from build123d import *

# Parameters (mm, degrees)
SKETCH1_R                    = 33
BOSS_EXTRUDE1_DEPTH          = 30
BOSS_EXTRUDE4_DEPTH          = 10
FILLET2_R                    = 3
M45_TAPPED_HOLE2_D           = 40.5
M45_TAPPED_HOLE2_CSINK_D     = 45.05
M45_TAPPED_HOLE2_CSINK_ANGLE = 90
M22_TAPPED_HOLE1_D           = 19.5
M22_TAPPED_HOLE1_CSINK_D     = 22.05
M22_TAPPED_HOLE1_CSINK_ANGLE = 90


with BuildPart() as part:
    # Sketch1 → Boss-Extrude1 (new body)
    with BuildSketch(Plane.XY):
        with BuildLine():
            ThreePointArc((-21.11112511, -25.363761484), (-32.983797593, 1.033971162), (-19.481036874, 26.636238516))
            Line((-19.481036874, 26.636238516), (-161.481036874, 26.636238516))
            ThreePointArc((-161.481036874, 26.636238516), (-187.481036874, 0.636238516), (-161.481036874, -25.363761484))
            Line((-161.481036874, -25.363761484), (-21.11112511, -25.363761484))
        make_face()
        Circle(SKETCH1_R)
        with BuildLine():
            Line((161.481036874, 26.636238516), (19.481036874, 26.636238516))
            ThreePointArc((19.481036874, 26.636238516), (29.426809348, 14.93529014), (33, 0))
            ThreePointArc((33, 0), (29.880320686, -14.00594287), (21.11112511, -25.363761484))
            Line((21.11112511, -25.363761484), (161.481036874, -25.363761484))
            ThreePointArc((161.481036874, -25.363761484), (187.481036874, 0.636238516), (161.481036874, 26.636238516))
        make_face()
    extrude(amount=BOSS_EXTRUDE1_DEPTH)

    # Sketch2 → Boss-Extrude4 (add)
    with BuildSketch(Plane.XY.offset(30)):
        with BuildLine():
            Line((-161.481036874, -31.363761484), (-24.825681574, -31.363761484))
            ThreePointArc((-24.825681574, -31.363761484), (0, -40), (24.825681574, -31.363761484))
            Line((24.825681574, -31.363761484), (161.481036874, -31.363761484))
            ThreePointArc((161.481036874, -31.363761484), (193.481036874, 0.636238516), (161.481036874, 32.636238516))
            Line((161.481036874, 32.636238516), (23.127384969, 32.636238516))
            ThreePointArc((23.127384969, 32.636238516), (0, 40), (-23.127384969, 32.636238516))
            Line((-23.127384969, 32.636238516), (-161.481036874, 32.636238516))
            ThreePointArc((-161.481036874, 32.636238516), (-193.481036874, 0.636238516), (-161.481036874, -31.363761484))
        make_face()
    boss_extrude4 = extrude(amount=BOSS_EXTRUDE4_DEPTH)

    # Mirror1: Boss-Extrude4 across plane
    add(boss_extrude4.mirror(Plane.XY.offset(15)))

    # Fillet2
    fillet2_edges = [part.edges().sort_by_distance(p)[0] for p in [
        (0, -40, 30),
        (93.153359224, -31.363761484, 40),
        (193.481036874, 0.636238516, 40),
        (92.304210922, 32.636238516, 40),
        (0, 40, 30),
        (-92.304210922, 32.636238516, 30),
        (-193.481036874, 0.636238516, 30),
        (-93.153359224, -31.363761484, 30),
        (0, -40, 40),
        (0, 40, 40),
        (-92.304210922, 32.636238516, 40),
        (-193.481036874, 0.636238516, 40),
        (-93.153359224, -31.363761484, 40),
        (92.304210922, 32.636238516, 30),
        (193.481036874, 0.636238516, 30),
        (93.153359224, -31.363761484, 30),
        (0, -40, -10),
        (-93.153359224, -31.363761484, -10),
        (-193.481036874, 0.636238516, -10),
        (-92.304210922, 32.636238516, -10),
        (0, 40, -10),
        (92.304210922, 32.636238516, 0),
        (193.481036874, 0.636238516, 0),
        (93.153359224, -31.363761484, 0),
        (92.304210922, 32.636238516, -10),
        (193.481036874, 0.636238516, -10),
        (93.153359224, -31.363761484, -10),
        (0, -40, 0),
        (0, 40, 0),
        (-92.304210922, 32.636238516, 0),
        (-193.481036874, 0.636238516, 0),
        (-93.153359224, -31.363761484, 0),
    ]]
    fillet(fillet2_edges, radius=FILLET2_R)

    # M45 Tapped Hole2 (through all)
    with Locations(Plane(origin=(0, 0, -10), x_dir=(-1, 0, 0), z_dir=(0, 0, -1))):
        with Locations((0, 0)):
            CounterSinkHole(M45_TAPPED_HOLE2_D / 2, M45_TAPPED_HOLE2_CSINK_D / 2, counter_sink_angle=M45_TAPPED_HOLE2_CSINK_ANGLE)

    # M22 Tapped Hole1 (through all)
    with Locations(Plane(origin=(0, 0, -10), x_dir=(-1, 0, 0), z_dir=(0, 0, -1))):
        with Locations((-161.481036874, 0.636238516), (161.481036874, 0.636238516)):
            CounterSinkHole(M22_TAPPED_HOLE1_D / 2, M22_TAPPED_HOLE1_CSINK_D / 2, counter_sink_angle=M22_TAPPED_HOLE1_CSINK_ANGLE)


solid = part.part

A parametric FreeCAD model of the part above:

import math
import FreeCAD as App
import Part
import Sketcher

V = App.Vector


def edges_at(feature, points):
    """Names of the edges that pass closest to the given points."""
    edges = feature.Shape.Edges
    near = lambda p: min(range(len(edges)), key=lambda i: edges[i].distToShape(Part.Vertex(*p))[0])
    return sorted({f"Edge{near(p) + 1}" for p in points})

doc = App.newDocument("Part")
body = doc.addObject("PartDesign::Body", "Body")

sketch1 = body.newObject("Sketcher::SketchObject", "Sketch")
sketch1.AttachmentSupport = (doc.getObject("XY_Plane"), [""])
sketch1.MapMode = "FlatFace"
sketch1.addGeometry([
    Part.LineSegment(V(-19.481037, 26.636239, 0), V(-161.481037, 26.636239, 0)),
    Part.ArcOfCircle(Part.Circle(V(-161.481037, 0.636239, 0), V(0, 0, 1), 26), math.radians(90), math.radians(270)),
    Part.LineSegment(V(-161.481037, -25.363761, 0), V(-21.111125, -25.363761, 0)),
    Part.ArcOfCircle(Part.Circle(V(0, 0, 0), V(0, 0, 1), 33), math.radians(-129.771769), math.radians(-50.228231)),
    Part.LineSegment(V(21.111125, -25.363761, 0), V(161.481037, -25.363761, 0)),
    Part.ArcOfCircle(Part.Circle(V(161.481037, 0.636239, 0), V(0, 0, 1), 26), math.radians(-90), math.radians(90)),
    Part.LineSegment(V(161.481037, 26.636239, 0), V(19.481037, 26.636239, 0)),
    Part.ArcOfCircle(Part.Circle(V(0, 0, 0), V(0, 0, 1), 33), math.radians(53.819255), math.radians(126.180745)),
], False)
sketch1.addConstraint([
    Sketcher.Constraint("Tangent", 0, 2, 1, 1),
    Sketcher.Constraint("Tangent", 1, 2, 2, 1),
    Sketcher.Constraint("Coincident", 2, 2, 3, 1),
    Sketcher.Constraint("Coincident", 3, 2, 4, 1),
    Sketcher.Constraint("Tangent", 4, 2, 5, 1),
    Sketcher.Constraint("Tangent", 5, 2, 6, 1),
    Sketcher.Constraint("Coincident", 6, 2, 7, 1),
    Sketcher.Constraint("Coincident", 7, 2, 0, 1),
    Sketcher.Constraint("Horizontal", 0),
    Sketcher.Constraint("Horizontal", 2),
    Sketcher.Constraint("Horizontal", 4),
    Sketcher.Constraint("Horizontal", 6),
    Sketcher.Constraint("Coincident", 3, 3, -1, 1),
    Sketcher.Constraint("Coincident", 7, 3, -1, 1),
    Sketcher.Constraint("Equal", 1, 5),
    Sketcher.Constraint("Equal", 3, 7),
    Sketcher.Constraint("Symmetric", 1, 3, 5, 3, -2),
    Sketcher.Constraint("Radius", 1, 26.0),
    Sketcher.Constraint("Radius", 3, 33.0),
    Sketcher.Constraint("DistanceX", 0, 2, 0, 1, 142.0),
    Sketcher.Constraint("DistanceX", 2, 1, 2, 2, 140.369912),
])
pad1 = body.newObject("PartDesign::Pad", "Pad")
pad1.Profile = sketch1
pad1.Length = 30

sketch2 = body.newObject("Sketcher::SketchObject", "Sketch001")
sketch2.AttachmentSupport = (doc.getObject("XY_Plane"), [""])
sketch2.MapMode = "FlatFace"
sketch2.AttachmentOffset = App.Placement(V(0, 0, 30), App.Rotation())
sketch2.addGeometry([
    Part.LineSegment(V(-161.481037, -31.363761, 0), V(-24.825682, -31.363761, 0)),
    Part.ArcOfCircle(Part.Circle(V(0, 0, 0), V(0, 0, 1), 40), math.radians(-128.363035), math.radians(-51.636965)),
    Part.LineSegment(V(24.825682, -31.363761, 0), V(161.481037, -31.363761, 0)),
    Part.ArcOfCircle(Part.Circle(V(161.481037, 0.636239, 0), V(0, 0, 1), 32), math.radians(-90), math.radians(90)),
    Part.LineSegment(V(161.481037, 32.636239, 0), V(23.127385, 32.636239, 0)),
    Part.ArcOfCircle(Part.Circle(V(0, 0, 0), V(0, 0, 1), 40), math.radians(54.67704), math.radians(125.32296)),
    Part.LineSegment(V(-23.127385, 32.636239, 0), V(-161.481037, 32.636239, 0)),
    Part.ArcOfCircle(Part.Circle(V(-161.481037, 0.636239, 0), V(0, 0, 1), 32), math.radians(90), math.radians(270)),
], False)
sketch2.addConstraint([
    Sketcher.Constraint("Coincident", 0, 2, 1, 1),
    Sketcher.Constraint("Coincident", 1, 2, 2, 1),
    Sketcher.Constraint("Tangent", 2, 2, 3, 1),
    Sketcher.Constraint("Tangent", 3, 2, 4, 1),
    Sketcher.Constraint("Coincident", 4, 2, 5, 1),
    Sketcher.Constraint("Coincident", 5, 2, 6, 1),
    Sketcher.Constraint("Tangent", 6, 2, 7, 1),
    Sketcher.Constraint("Tangent", 7, 2, 0, 1),
    Sketcher.Constraint("Horizontal", 0),
    Sketcher.Constraint("Horizontal", 2),
    Sketcher.Constraint("Horizontal", 4),
    Sketcher.Constraint("Horizontal", 6),
    Sketcher.Constraint("Coincident", 1, 3, -1, 1),
    Sketcher.Constraint("Coincident", 5, 3, -1, 1),
    Sketcher.Constraint("Equal", 1, 5),
    Sketcher.Constraint("Equal", 3, 7),
    Sketcher.Constraint("Symmetric", 3, 3, 7, 3, -2),
    Sketcher.Constraint("Radius", 1, 40.0),
    Sketcher.Constraint("Radius", 3, 32.0),
    Sketcher.Constraint("DistanceX", 4, 2, 4, 1, 138.353652),
    Sketcher.Constraint("DistanceX", 0, 1, 0, 2, 136.655355),
])
pad2 = body.newObject("PartDesign::Pad", "Pad001")
pad2.Profile = sketch2
pad2.Length = 10
doc.recompute()

datumplane = body.newObject("PartDesign::Plane", "DatumPlane")
datumplane.AttachmentSupport = (doc.getObject("XY_Plane"), [""])
datumplane.MapMode = "FlatFace"
datumplane.AttachmentOffset = App.Placement(V(0, 0, 15), App.Rotation())
mirrored = body.newObject("PartDesign::Mirrored", "Mirrored")
mirrored.Originals = [pad2]
mirrored.MirrorPlane = (datumplane, [""])
body.Tip = mirrored
doc.recompute()

fillet = body.newObject("PartDesign::Fillet", "Fillet")
fillet.Base = (mirrored, edges_at(mirrored, [
    (0, -40, 30),
    (93.153, -31.364, 40),
    (193.481, 0.636, 40),
    (92.304, 32.636, 40),
    (0, 40, 30),
    (-92.304, 32.636, 30),
    (-193.481, 0.636, 30),
    (-93.153, -31.364, 30),
    (0, -40, 40),
    (0, 40, 40),
    (-92.304, 32.636, 40),
    (-193.481, 0.636, 40),
    (-93.153, -31.364, 40),
    (92.304, 32.636, 30),
    (193.481, 0.636, 30),
    (93.153, -31.364, 30),
    (0, -40, -10),
    (-93.153, -31.364, -10),
    (-193.481, 0.636, -10),
    (-92.304, 32.636, -10),
    (0, 40, -10),
    (92.304, 32.636, 0),
    (193.481, 0.636, 0),
    (93.153, -31.364, 0),
    (92.304, 32.636, -10),
    (193.481, 0.636, -10),
    (93.153, -31.364, -10),
    (0, -40, 0),
    (0, 40, 0),
    (-92.304, 32.636, 0),
    (-193.481, 0.636, 0),
    (-93.153, -31.364, 0),
]))
fillet.Radius = 3

sketch3 = body.newObject("Sketcher::SketchObject", "Sketch002")
sketch3.AttachmentSupport = (doc.getObject("XY_Plane"), [""])
sketch3.MapMode = "FlatFace"
sketch3.AttachmentOffset = App.Placement(V(0, 0, -10), App.Rotation())
sketch3.addGeometry(Part.Circle(V(0, 0, 0), V(0, 0, 1), 20.25), False)
sketch3.addConstraint([
    Sketcher.Constraint("Coincident", 0, 3, -1, 1),
    Sketcher.Constraint("Diameter", 0, 40.5),
])
doc.recompute()
hole = body.newObject("PartDesign::Hole", "Hole")
hole.Profile = sketch3
hole.ThreadType = "None"
hole.Diameter = 40.5
hole.DepthType = "ThroughAll"
hole.HoleCutType = "Countersink"
hole.HoleCutDiameter = 45.05
hole.HoleCutCountersinkAngle = 90
hole.Reversed = True

sketch4 = body.newObject("Sketcher::SketchObject", "Sketch003")
sketch4.AttachmentSupport = (doc.getObject("XY_Plane"), [""])
sketch4.MapMode = "FlatFace"
sketch4.AttachmentOffset = App.Placement(V(0, 0, -10), App.Rotation())
sketch4.addGeometry([
    Part.Circle(V(161.481037, 0.636239, 0), V(0, 0, 1), 9.75),
    Part.Circle(V(-161.481037, 0.636239, 0), V(0, 0, 1), 9.75),
], False)
sketch4.addConstraint([
    Sketcher.Constraint("Equal", 0, 1),
    Sketcher.Constraint("Symmetric", 0, 3, 1, 3, -2),
    Sketcher.Constraint("Diameter", 0, 19.5),
    Sketcher.Constraint("DistanceY", -1, 1, 0, 3, 0.636239),
    Sketcher.Constraint("DistanceX", -1, 1, 0, 3, 161.481037),
])
doc.recompute()
hole2 = body.newObject("PartDesign::Hole", "Hole001")
hole2.Profile = sketch4
hole2.ThreadType = "None"
hole2.Diameter = 19.5
hole2.DepthType = "ThroughAll"
hole2.HoleCutType = "Countersink"
hole2.HoleCutDiameter = 22.05
hole2.HoleCutCountersinkAngle = 90
hole2.Reversed = True

doc.recompute()
